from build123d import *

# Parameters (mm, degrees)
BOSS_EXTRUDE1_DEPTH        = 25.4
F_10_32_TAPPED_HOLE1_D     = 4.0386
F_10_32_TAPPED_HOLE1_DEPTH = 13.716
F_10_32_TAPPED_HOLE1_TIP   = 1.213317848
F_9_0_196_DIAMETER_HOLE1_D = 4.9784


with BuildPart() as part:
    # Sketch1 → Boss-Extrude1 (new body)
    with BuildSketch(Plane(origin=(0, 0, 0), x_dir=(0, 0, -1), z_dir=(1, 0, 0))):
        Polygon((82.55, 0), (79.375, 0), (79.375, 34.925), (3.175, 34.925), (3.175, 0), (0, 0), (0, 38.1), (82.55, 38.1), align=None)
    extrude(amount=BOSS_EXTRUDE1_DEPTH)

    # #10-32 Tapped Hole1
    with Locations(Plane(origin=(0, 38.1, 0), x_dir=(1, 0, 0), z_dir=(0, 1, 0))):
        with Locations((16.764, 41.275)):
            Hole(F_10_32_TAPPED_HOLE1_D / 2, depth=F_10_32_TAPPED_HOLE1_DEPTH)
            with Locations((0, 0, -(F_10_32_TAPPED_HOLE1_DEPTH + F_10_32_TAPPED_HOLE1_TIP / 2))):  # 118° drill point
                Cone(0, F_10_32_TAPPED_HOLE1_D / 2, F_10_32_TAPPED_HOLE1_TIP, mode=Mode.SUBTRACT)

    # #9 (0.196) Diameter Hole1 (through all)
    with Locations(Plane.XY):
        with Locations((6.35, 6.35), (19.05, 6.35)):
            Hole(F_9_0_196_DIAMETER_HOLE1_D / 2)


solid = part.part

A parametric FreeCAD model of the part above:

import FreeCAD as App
import Part
import Sketcher

V = App.Vector
Q = App.Units.Quantity

doc = App.newDocument("Part")
body = doc.addObject("PartDesign::Body", "Body")

sketch1 = body.newObject("Sketcher::SketchObject", "Sketch")
sketch1.AttachmentSupport = (doc.getObject("YZ_Plane"), [""])
sketch1.MapMode = "FlatFace"
sketch1.addGeometry(Part.LineSegment(V(0, -79.4, 0), V(0, -82.5, 0)), False)
sketch1.addGeometry(Part.LineSegment(V(0, -82.5, 0), V(38.1, -82.5, 0)), False)
sketch1.addGeometry(Part.LineSegment(V(38.1, -82.5, 0), V(38.1, 0, 0)), False)
sketch1.addGeometry(Part.LineSegment(V(38.1, 0, 0), V(0, 0, 0)), False)
sketch1.addGeometry(Part.LineSegment(V(0, 0, 0), V(0, -3.2, 0)), False)
sketch1.addGeometry(Part.LineSegment(V(0, -3.2, 0), V(34.9, -3.2, 0)), False)
sketch1.addGeometry(Part.LineSegment(V(34.9, -3.2, 0), V(34.9, -79.4, 0)), False)
sketch1.addGeometry(Part.LineSegment(V(34.9, -79.4, 0), V(0, -79.4, 0)), False)
sketch1.addConstraint(Sketcher.Constraint("Coincident", 0, 2, 1, 1))
sketch1.addConstraint(Sketcher.Constraint("Coincident", 1, 2, 2, 1))
sketch1.addConstraint(Sketcher.Constraint("Coincident", 2, 2, 3, 1))
sketch1.addConstraint(Sketcher.Constraint("Coincident", 3, 2, 4, 1))
sketch1.addConstraint(Sketcher.Constraint("Coincident", 4, 2, 5, 1))
sketch1.addConstraint(Sketcher.Constraint("Coincident", 5, 2, 6, 1))
sketch1.addConstraint(Sketcher.Constraint("Coincident", 6, 2, 7, 1))
sketch1.addConstraint(Sketcher.Constraint("Coincident", 7, 2, 0, 1))
sketch1.addConstraint(Sketcher.Constraint("Vertical", 0))
sketch1.addConstraint(Sketcher.Constraint("Horizontal", 1))
sketch1.addConstraint(Sketcher.Constraint("Vertical", 2))
sketch1.addConstraint(Sketcher.Constraint("Horizontal", 3))
sketch1.addConstraint(Sketcher.Constraint("Vertical", 4))
sketch1.addConstraint(Sketcher.Constraint("Horizontal", 5))
sketch1.addConstraint(Sketcher.Constraint("Vertical", 6))
sketch1.addConstraint(Sketcher.Constraint("Horizontal", 7))
sketch1.addConstraint(Sketcher.Constraint("Coincident", 3, 2, -1, 1))
sketch1.addConstraint(Sketcher.Constraint("PointOnObject", 0, 2, -2))
sketch1.addConstraint(Sketcher.Constraint("Equal", 0, 4))
sketch1.addConstraint(Sketcher.Constraint("DistanceY", 6, 2, 6, 1, Q("3 in")))
sketch1.addConstraint(Sketcher.Constraint("DistanceX", 1, 1, 1, 2, Q("1.5 in")))
sketch1.addConstraint(Sketcher.Constraint("DistanceY", 2, 1, 2, 2, Q("3.25 in")))
sketch1.addConstraint(Sketcher.Constraint("DistanceX", 5, 1, 5, 2, Q("1.375 in")))
pad1 = body.newObject("PartDesign::Pad", "Pad")
pad1.Profile = sketch1
pad1.Length = Q("1 in")

sketch2 = body.newObject("Sketcher::SketchObject", "Sketch001")
sketch2.AttachmentSupport = (doc.getObject("XZ_Plane"), [""])
sketch2.MapMode = "FlatFace"
sketch2.AttachmentOffset = App.Placement(V(0, 0, -1.5 * 25.4), App.Rotation())
sketch2.addGeometry(Part.Circle(V(16.8, -41.3, 0), V(0, 0, 1), 2), False)
sketch2.addConstraint(Sketcher.Constraint("Diameter", 0, Q("0.159 in")))
sketch2.addConstraint(Sketcher.Constraint("DistanceX", -1, 1, 0, 3, Q("0.66 in")))
sketch2.addConstraint(Sketcher.Constraint("DistanceY", 0, 3, -1, 1, Q("1.625 in")))
doc.recompute()
hole = body.newObject("PartDesign::Hole", "Hole")
hole.Profile = sketch2
hole.ThreadType = "None"
hole.Diameter = Q("0.159 in")
hole.DepthType = "Dimension"
hole.Depth = Q("0.54 in")
hole.DrillPoint = "Angled"
hole.DrillPointAngle = 118
hole.Reversed = True

sketch3 = body.newObject("Sketcher::SketchObject", "Sketch002")
sketch3.AttachmentSupport = (doc.getObject("XY_Plane"), [""])
sketch3.MapMode = "FlatFace"
sketch3.addGeometry(Part.Circle(V(6.3, 6.3, 0), V(0, 0, 1), 2.5), False)
sketch3.addGeometry(Part.Circle(V(19.1, 6.3, 0), V(0, 0, 1), 2.5), False)
sketch3.addConstraint(Sketcher.Constraint("Equal", 0, 1))
sketch3.addConstraint(Sketcher.Constraint("Horizontal", 0, 3, 1, 3))
sketch3.addConstraint(Sketcher.Constraint("Diameter", 0, Q("0.196 in")))
sketch3.addConstraint(Sketcher.Constraint("DistanceX", 0, 3, 1, 3, Q("0.5 in")))
sketch3.addConstraint(Sketcher.Constraint("DistanceX", -1, 1, 0, 3, Q("0.25 in")))
sketch3.addConstraint(Sketcher.Constraint("DistanceY", -1, 1, 0, 3, Q("0.25 in")))
doc.recompute()
hole2 = body.newObject("PartDesign::Hole", "Hole001")
hole2.Profile = sketch3
hole2.ThreadType = "None"
hole2.Diameter = Q("0.196 in")
hole2.DepthType = "ThroughAll"

doc.recompute()
